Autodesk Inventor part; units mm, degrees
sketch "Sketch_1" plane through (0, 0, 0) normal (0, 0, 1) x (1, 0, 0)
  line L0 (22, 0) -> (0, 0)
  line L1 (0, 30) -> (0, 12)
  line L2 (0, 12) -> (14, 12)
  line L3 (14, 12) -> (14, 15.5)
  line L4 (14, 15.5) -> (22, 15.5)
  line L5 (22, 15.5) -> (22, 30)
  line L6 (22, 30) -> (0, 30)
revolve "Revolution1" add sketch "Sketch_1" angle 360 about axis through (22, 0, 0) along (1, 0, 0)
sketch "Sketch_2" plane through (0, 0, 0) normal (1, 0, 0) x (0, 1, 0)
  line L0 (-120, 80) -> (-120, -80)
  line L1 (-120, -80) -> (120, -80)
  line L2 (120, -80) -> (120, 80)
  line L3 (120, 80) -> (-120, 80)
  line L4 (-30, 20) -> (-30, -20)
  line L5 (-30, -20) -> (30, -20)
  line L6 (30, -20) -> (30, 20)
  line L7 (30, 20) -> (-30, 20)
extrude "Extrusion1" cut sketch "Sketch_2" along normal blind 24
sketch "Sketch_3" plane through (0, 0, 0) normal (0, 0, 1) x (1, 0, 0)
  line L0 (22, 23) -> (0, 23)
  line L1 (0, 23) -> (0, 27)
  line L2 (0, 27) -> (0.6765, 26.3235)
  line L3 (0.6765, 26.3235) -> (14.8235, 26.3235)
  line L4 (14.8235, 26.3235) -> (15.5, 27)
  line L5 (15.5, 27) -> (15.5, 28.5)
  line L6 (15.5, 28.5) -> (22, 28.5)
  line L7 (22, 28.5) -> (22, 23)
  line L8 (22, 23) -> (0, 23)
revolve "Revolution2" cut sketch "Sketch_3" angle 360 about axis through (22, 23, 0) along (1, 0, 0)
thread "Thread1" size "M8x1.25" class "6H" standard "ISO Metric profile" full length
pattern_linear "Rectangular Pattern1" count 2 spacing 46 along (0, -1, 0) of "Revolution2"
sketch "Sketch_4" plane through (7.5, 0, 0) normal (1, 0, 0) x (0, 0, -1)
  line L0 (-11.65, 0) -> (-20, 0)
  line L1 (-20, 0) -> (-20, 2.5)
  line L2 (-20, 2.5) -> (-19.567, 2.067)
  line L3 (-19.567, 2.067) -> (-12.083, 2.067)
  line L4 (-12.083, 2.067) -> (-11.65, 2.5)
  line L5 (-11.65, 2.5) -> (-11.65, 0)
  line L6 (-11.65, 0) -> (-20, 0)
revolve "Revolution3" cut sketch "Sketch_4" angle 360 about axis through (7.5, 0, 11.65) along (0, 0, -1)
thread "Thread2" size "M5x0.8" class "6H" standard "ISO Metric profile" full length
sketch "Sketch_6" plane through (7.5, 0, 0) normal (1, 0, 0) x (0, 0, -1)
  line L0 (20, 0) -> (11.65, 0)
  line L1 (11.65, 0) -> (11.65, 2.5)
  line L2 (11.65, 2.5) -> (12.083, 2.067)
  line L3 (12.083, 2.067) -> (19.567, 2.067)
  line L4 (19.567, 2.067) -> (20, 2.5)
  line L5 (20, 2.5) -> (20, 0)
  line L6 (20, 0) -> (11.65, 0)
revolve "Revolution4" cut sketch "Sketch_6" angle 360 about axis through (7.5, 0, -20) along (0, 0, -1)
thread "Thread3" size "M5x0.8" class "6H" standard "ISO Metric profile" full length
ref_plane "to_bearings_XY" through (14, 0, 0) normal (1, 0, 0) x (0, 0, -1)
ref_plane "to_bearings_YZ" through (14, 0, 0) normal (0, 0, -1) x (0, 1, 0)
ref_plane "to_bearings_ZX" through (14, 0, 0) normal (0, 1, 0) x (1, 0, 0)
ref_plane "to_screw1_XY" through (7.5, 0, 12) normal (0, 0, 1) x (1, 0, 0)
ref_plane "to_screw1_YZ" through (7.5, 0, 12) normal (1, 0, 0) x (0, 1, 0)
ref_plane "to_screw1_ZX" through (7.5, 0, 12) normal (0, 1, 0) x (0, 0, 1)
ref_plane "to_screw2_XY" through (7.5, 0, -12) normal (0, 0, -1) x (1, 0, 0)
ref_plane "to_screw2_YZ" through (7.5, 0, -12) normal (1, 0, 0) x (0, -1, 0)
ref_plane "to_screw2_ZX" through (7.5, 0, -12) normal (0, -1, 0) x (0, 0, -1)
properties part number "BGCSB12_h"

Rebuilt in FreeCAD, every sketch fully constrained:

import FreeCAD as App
import Part
import Sketcher
from FreeCAD import Vector


def add_polygon(sketch, points):
    """Adds a closed chain of lines whose ends are joined by coincident constraints."""
    first, n = sketch.GeometryCount, len(points)
    for a, b in zip(points, points[1:] + points[:1]):
        sketch.addGeometry(Part.LineSegment(App.Vector(*a, 0), App.Vector(*b, 0)), False)
    for i in range(n):
        sketch.addConstraint(Sketcher.Constraint("Coincident", first + i, 2, first + (i + 1) % n, 1))

doc = App.newDocument("Part")
body = doc.addObject("PartDesign::Body", "Body")

sketch1 = body.newObject("Sketcher::SketchObject", "Sketch")
sketch1.AttachmentSupport = (doc.getObject("XY_Plane"), [""])
sketch1.MapMode = "FlatFace"
add_polygon(sketch1, [(22, 30), (0, 30), (0, 12), (14, 12), (14, 15.5), (22, 15.5)])
sketch1.addConstraint([
    Sketcher.Constraint("Horizontal", 0),
    Sketcher.Constraint("Vertical", 1),
    Sketcher.Constraint("Horizontal", 2),
    Sketcher.Constraint("Vertical", 3),
    Sketcher.Constraint("Horizontal", 4),
    Sketcher.Constraint("Vertical", 5),
    Sketcher.Constraint("PointOnObject", 0, 2, -2),
    Sketcher.Constraint("DistanceX", 0, 2, 0, 1, 22.0),
    Sketcher.Constraint("DistanceX", 2, 1, 2, 2, 14.0),
    Sketcher.Constraint("DistanceY", 1, 2, 1, 1, 18.0),
    Sketcher.Constraint("DistanceY", 3, 1, 3, 2, 3.5),
    Sketcher.Constraint("DistanceY", -1, 1, 0, 2, 30.0),
])
revolution = body.newObject("PartDesign::Revolution", "Revolution")
revolution.Profile = sketch1
revolution.ReferenceAxis = (sketch1, ["H_Axis"])
revolution.Angle = 360

sketch2 = body.newObject("Sketcher::SketchObject", "Sketch001")
sketch2.AttachmentSupport = (doc.getObject("YZ_Plane"), [""])
sketch2.MapMode = "FlatFace"
add_polygon(sketch2, [(120, 80), (-120, 80), (-120, -80), (120, -80)])
add_polygon(sketch2, [(-30, -20), (-30, 20), (30, 20), (30, -20)])
sketch2.addConstraint([
    Sketcher.Constraint("Horizontal", 0),
    Sketcher.Constraint("Vertical", 1),
    Sketcher.Constraint("Horizontal", 2),
    Sketcher.Constraint("Vertical", 3),
    Sketcher.Constraint("Vertical", 4),
    Sketcher.Constraint("Horizontal", 5),
    Sketcher.Constraint("Vertical", 6),
    Sketcher.Constraint("Horizontal", 7),
    Sketcher.Constraint("Symmetric", 0, 2, 2, 2, -1, 1),
    Sketcher.Constraint("Symmetric", 4, 2, 6, 2, -1, 1),
    Sketcher.Constraint("DistanceX", 0, 2, 0, 1, 240.0),
    Sketcher.Constraint("DistanceX", 5, 1, 5, 2, 60.0),
    Sketcher.Constraint("DistanceY", 1, 2, 1, 1, 160.0),
    Sketcher.Constraint("DistanceY", 4, 1, 4, 2, 40.0),
])
pocket1 = body.newObject("PartDesign::Pocket", "Pocket")
pocket1.Profile = sketch2
pocket1.Length = 24
pocket1.Reversed = True

sketch3 = body.newObject("Sketcher::SketchObject", "Sketch002")
sketch3.AttachmentSupport = (doc.getObject("XY_Plane"), [""])
sketch3.MapMode = "FlatFace"
add_polygon(sketch3, [(0, 23), (22, 23), (22, 28.5), (15.5, 28.5), (15.5, 27), (14.8, 26.3), (0.7, 26.3), (0, 27)])
sketch3.addGeometry(Part.LineSegment(Vector(0, 23, 0), Vector(22, 23, 0)), True)
sketch3.addConstraint([
    Sketcher.Constraint("Horizontal", 0),
    Sketcher.Constraint("Vertical", 1),
    Sketcher.Constraint("Horizontal", 2),
    Sketcher.Constraint("Vertical", 3),
    Sketcher.Constraint("Horizontal", 5),
    Sketcher.Constraint("Vertical", 7),
    Sketcher.Constraint("Horizontal", 8),
    Sketcher.Constraint("Coincident", 8, 1, 7, 2),
    Sketcher.Constraint("PointOnObject", 6, 2, -2),
    Sketcher.Constraint("Perpendicular", 4, 6),
    Sketcher.Constraint("Horizontal", 3, 2, 6, 2),
    Sketcher.Constraint("Vertical", 1, 2, 8, 2),
    Sketcher.Constraint("Equal", 4, 6),
    Sketcher.Constraint("DistanceX", 0, 1, 0, 2, 22.0),
    Sketcher.Constraint("DistanceY", 7, 2, 7, 1, 4.0),
    Sketcher.Constraint("DistanceX", 2, 2, 2, 1, 6.5),
    Sketcher.Constraint("DistanceY", 1, 1, 1, 2, 5.5),
    Sketcher.Constraint("DistanceY", -1, 1, 0, 2, 23.0),
    Sketcher.Constraint("DistanceX", 5, 2, 5, 1, 14.147),
])
groove = body.newObject("PartDesign::Groove", "Groove")
groove.Profile = sketch3
groove.ReferenceAxis = (sketch3, ["Axis0"])
groove.Angle = 360
doc.recompute()

linearpattern = body.newObject("PartDesign::LinearPattern", "LinearPattern")
linearpattern.Originals = [groove]
linearpattern.Direction = (doc.getObject("Y_Axis"), [""])
linearpattern.Mode = "offset"
linearpattern.Offset = 46
linearpattern.Occurrences = 2
linearpattern.Reversed = True
body.Tip = linearpattern

sketch4 = body.newObject("Sketcher::SketchObject", "Sketch003")
sketch4.AttachmentSupport = (doc.getObject("YZ_Plane"), [""])
sketch4.MapMode = "FlatFace"
sketch4.AttachmentOffset = App.Placement(Vector(0, 0, 7.5), App.Rotation())
add_polygon(sketch4, [(0, 20), (0, 11.7), (2.5, 11.7), (2.1, 12.1), (2.1, 19.6), (2.5, 20)])
sketch4.addConstraint([
    Sketcher.Constraint("Vertical", 0),
    Sketcher.Constraint("Horizontal", 1),
    Sketcher.Constraint("Vertical", 3),
    Sketcher.Constraint("Horizontal", 5),
    Sketcher.Constraint("PointOnObject", 0, 2, -2),
    Sketcher.Constraint("Perpendicular", 2, 4),
    Sketcher.Constraint("Vertical", 1, 2, 4, 2),
    Sketcher.Constraint("Equal", 2, 4),
    Sketcher.Constraint("DistanceX", 1, 1, 1, 2, 2.5),
    Sketcher.Constraint("DistanceY", -1, 1, 4, 2, 20.0),
    Sketcher.Constraint("DistanceY", 0, 2, 0, 1, 8.35),
    Sketcher.Constraint("DistanceY", 3, 1, 3, 2, 7.484),
])
groove2 = body.newObject("PartDesign::Groove", "Groove001")
groove2.Profile = sketch4
groove2.ReferenceAxis = (sketch4, ["V_Axis"])
groove2.Angle = 360

sketch5 = body.newObject("Sketcher::SketchObject", "Sketch004")
sketch5.AttachmentSupport = (doc.getObject("YZ_Plane"), [""])
sketch5.MapMode = "FlatFace"
sketch5.AttachmentOffset = App.Placement(Vector(0, 0, 7.5), App.Rotation())
add_polygon(sketch5, [(0, -11.7), (0, -20), (2.5, -20), (2.1, -19.6), (2.1, -12.1), (2.5, -11.7)])
sketch5.addConstraint([
    Sketcher.Constraint("Vertical", 0),
    Sketcher.Constraint("Horizontal", 1),
    Sketcher.Constraint("Vertical", 3),
    Sketcher.Constraint("Horizontal", 5),
    Sketcher.Constraint("PointOnObject", 0, 2, -2),
    Sketcher.Constraint("Perpendicular", 2, 4),
    Sketcher.Constraint("Vertical", 1, 2, 4, 2),
    Sketcher.Constraint("Equal", 2, 4),
    Sketcher.Constraint("DistanceX", 1, 1, 1, 2, 2.5),
    Sketcher.Constraint("DistanceY", 0, 2, -1, 1, 20.0),
    Sketcher.Constraint("DistanceY", 0, 2, 0, 1, 8.35),
    Sketcher.Constraint("DistanceY", 3, 1, 3, 2, 7.484),
])
groove3 = body.newObject("PartDesign::Groove", "Groove002")
groove3.Profile = sketch5
groove3.ReferenceAxis = (sketch5, ["V_Axis"])
groove3.Angle = 360

doc.recompute()
